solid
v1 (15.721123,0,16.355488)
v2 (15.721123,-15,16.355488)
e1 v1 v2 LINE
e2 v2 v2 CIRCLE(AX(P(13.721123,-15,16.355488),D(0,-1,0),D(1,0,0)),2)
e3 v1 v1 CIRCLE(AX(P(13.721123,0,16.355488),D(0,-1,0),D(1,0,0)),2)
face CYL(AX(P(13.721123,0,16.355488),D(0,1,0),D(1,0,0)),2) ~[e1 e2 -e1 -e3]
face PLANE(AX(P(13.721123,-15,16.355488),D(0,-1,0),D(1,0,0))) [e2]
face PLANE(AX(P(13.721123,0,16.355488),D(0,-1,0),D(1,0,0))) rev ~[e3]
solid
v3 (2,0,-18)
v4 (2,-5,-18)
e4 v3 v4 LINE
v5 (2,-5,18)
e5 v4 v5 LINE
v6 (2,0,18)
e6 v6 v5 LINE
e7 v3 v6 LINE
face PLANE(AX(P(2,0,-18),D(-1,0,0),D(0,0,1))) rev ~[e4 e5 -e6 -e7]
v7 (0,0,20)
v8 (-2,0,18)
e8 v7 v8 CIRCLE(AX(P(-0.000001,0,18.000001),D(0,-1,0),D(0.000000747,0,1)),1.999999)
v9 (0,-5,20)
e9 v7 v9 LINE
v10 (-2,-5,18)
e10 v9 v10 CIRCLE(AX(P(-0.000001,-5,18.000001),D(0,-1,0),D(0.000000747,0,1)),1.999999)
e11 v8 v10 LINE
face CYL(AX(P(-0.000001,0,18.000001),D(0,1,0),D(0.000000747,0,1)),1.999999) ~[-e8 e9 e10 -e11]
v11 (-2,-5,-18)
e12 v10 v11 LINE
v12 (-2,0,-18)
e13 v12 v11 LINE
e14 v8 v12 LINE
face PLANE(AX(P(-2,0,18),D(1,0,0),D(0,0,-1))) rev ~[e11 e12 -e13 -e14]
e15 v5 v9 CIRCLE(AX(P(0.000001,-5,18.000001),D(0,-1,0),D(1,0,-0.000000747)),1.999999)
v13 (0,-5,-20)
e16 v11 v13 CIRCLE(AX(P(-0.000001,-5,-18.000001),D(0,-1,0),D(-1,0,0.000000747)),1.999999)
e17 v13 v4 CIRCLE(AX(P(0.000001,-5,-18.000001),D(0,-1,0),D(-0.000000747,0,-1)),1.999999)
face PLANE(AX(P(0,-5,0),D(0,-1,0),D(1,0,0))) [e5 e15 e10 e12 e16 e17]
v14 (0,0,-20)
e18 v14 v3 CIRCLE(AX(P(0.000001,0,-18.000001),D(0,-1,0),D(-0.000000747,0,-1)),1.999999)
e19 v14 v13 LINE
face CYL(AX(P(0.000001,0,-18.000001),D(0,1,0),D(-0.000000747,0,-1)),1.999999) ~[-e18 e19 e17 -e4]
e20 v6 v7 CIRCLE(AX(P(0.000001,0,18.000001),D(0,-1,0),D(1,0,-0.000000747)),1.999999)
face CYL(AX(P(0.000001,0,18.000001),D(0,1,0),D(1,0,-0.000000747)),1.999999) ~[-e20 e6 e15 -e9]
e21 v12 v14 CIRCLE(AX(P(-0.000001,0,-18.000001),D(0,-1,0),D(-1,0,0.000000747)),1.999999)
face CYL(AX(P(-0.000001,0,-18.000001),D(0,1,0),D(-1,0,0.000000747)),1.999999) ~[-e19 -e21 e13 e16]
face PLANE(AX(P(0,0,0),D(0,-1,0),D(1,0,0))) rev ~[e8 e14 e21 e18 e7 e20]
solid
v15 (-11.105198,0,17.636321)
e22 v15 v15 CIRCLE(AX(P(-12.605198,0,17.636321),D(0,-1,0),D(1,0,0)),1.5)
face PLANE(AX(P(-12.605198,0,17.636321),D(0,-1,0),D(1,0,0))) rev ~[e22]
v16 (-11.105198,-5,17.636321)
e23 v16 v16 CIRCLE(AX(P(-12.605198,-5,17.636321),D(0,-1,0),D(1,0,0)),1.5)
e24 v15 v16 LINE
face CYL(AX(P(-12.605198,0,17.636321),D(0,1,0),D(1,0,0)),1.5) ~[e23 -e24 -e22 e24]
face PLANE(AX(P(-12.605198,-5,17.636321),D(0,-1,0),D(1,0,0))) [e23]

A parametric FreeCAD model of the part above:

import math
import FreeCAD as App
import Part
import Sketcher
from FreeCAD import Vector

doc = App.newDocument("Part")
body = doc.addObject("PartDesign::Body", "Body")

sketch1 = body.newObject("Sketcher::SketchObject", "Sketch")
sketch1.AttachmentSupport = (doc.getObject("XZ_Plane"), [""])
sketch1.MapMode = "FlatFace"
sketch1.addGeometry(Part.Circle(Vector(13.7, 16.4, 0), Vector(0, 0, 1), 2), False)
sketch1.addConstraint(Sketcher.Constraint("Diameter", 0, 4.0))
sketch1.addConstraint(Sketcher.Constraint("DistanceY", -1, 1, 0, 3, 16.355488))
sketch1.addConstraint(Sketcher.Constraint("DistanceX", -1, 1, 0, 3, 13.721123))
pad1 = body.newObject("PartDesign::Pad", "Pad")
pad1.Profile = sketch1
pad1.Length = 15
body2 = doc.addObject("PartDesign::Body", "Body001")

sketch2 = body2.newObject("Sketcher::SketchObject", "Sketch001")
sketch2.AttachmentSupport = (doc.getObject("XZ_Plane001"), [""])
sketch2.MapMode = "FlatFace"
sketch2.addGeometry(Part.Circle(Vector(-12.6, 17.6, 0), Vector(0, 0, 1), 1.5), False)
sketch2.addConstraint(Sketcher.Constraint("Diameter", 0, 3.0))
sketch2.addConstraint(Sketcher.Constraint("DistanceY", -1, 1, 0, 3, 17.636321))
sketch2.addConstraint(Sketcher.Constraint("DistanceX", 0, 3, -1, 1, 12.605198))
pad2 = body2.newObject("PartDesign::Pad", "Pad001")
pad2.Profile = sketch2
pad2.Length = 5
body3 = doc.addObject("PartDesign::Body", "Body002")

sketch3 = body3.newObject("Sketcher::SketchObject", "Sketch002")
sketch3.AttachmentSupport = (doc.getObject("XZ_Plane002"), [""])
sketch3.MapMode = "FlatFace"
sketch3.addGeometry(Part.LineSegment(Vector(2, -18, 0), Vector(2, 18, 0)), False)
sketch3.addGeometry(Part.ArcOfCircle(Part.Circle(Vector(0, 18, 0), Vector(0, 0, 1), 2), math.radians(0), math.radians(90)), False)
sketch3.addGeometry(Part.ArcOfCircle(Part.Circle(Vector(0, 18, 0), Vector(0, 0, 1), 2), math.radians(90), math.radians(180)), False)
sketch3.addGeometry(Part.LineSegment(Vector(-2, 18, 0), Vector(-2, -18, 0)), False)
sketch3.addGeometry(Part.ArcOfCircle(Part.Circle(Vector(0, -18, 0), Vector(0, 0, 1), 2), math.radians(180), math.radians(270)), False)
sketch3.addGeometry(Part.ArcOfCircle(Part.Circle(Vector(0, -18, 0), Vector(0, 0, 1), 2), math.radians(-90), math.radians(0)), False)
sketch3.addConstraint(Sketcher.Constraint("Tangent", 0, 2, 1, 1))
sketch3.addConstraint(Sketcher.Constraint("Tangent", 1, 2, 2, 1))
sketch3.addConstraint(Sketcher.Constraint("Tangent", 2, 2, 3, 1))
sketch3.addConstraint(Sketcher.Constraint("Tangent", 3, 2, 4, 1))
sketch3.addConstraint(Sketcher.Constraint("Tangent", 4, 2, 5, 1))
sketch3.addConstraint(Sketcher.Constraint("Tangent", 5, 2, 0, 1))
sketch3.addConstraint(Sketcher.Constraint("Vertical", 0))
sketch3.addConstraint(Sketcher.Constraint("Vertical", 3))
sketch3.addConstraint(Sketcher.Constraint("Equal", 1, 2))
sketch3.addConstraint(Sketcher.Constraint("Equal", 2, 4))
sketch3.addConstraint(Sketcher.Constraint("Symmetric", 1, 3, 4, 3, -1, 1))
sketch3.addConstraint(Sketcher.Constraint("PointOnObject", 1, 2, -2))
sketch3.addConstraint(Sketcher.Constraint("PointOnObject", 4, 2, -2))
sketch3.addConstraint(Sketcher.Constraint("Radius", 1, 1.999999))
sketch3.addConstraint(Sketcher.Constraint("DistanceY", 0, 1, 0, 2, 36.0))
pad3 = body3.newObject("PartDesign::Pad", "Pad002")
pad3.Profile = sketch3
pad3.Length = 5

doc.recompute()
